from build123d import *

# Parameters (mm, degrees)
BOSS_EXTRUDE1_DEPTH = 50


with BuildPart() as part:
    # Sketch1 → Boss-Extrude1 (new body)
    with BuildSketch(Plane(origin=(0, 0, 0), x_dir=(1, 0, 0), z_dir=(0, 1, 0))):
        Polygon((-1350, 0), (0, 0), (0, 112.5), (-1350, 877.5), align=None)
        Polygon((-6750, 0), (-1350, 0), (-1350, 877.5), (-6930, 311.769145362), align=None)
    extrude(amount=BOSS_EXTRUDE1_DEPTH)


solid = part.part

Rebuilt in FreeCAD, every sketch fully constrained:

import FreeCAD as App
import Part
import Sketcher
from FreeCAD import Vector
Q = App.Units.Quantity


def add_polygon(sketch, points):
    """Adds a closed chain of lines whose ends are joined by coincident constraints."""
    first, n = sketch.GeometryCount, len(points)
    for a, b in zip(points, points[1:] + points[:1]):
        sketch.addGeometry(Part.LineSegment(App.Vector(*a, 0), App.Vector(*b, 0)), False)
    for i in range(n):
        sketch.addConstraint(Sketcher.Constraint("Coincident", first + i, 2, first + (i + 1) % n, 1))

doc = App.newDocument("Part")
body = doc.addObject("PartDesign::Body", "Body")

sketch1 = body.newObject("Sketcher::SketchObject", "Sketch")
sketch1.AttachmentSupport = (doc.getObject("XZ_Plane"), [""])
sketch1.MapMode = "FlatFace"
add_polygon(sketch1, [(0, 0), (0, -112), (-1350, -878), (-6930, -312), (-6750, 0)])
sketch1.addConstraint(Sketcher.Constraint("Vertical", 0))
sketch1.addConstraint(Sketcher.Constraint("Horizontal", 4))
sketch1.addConstraint(Sketcher.Constraint("Coincident", 4, 2, -1, 1))
sketch1.addConstraint(Sketcher.Constraint("DistanceX", 4, 1, 4, 2, 6750.0))
sketch1.addConstraint(Sketcher.Constraint("Angle", 3, Q("60 deg")))
sketch1.addConstraint(Sketcher.Constraint("Distance", 3, 360.0))
sketch1.addConstraint(Sketcher.Constraint("DistanceY", 0, 2, 0, 1, 112.5))
sketch1.addConstraint(Sketcher.Constraint("DistanceX", 1, 2, -1, 1, 1350.0))
sketch1.addConstraint(Sketcher.Constraint("DistanceY", 1, 2, 0, 2, 765.0))
pad1 = body.newObject("PartDesign::Pad", "Pad")
pad1.Profile = sketch1
pad1.Length = 50
pad1.Reversed = True

doc.recompute()
